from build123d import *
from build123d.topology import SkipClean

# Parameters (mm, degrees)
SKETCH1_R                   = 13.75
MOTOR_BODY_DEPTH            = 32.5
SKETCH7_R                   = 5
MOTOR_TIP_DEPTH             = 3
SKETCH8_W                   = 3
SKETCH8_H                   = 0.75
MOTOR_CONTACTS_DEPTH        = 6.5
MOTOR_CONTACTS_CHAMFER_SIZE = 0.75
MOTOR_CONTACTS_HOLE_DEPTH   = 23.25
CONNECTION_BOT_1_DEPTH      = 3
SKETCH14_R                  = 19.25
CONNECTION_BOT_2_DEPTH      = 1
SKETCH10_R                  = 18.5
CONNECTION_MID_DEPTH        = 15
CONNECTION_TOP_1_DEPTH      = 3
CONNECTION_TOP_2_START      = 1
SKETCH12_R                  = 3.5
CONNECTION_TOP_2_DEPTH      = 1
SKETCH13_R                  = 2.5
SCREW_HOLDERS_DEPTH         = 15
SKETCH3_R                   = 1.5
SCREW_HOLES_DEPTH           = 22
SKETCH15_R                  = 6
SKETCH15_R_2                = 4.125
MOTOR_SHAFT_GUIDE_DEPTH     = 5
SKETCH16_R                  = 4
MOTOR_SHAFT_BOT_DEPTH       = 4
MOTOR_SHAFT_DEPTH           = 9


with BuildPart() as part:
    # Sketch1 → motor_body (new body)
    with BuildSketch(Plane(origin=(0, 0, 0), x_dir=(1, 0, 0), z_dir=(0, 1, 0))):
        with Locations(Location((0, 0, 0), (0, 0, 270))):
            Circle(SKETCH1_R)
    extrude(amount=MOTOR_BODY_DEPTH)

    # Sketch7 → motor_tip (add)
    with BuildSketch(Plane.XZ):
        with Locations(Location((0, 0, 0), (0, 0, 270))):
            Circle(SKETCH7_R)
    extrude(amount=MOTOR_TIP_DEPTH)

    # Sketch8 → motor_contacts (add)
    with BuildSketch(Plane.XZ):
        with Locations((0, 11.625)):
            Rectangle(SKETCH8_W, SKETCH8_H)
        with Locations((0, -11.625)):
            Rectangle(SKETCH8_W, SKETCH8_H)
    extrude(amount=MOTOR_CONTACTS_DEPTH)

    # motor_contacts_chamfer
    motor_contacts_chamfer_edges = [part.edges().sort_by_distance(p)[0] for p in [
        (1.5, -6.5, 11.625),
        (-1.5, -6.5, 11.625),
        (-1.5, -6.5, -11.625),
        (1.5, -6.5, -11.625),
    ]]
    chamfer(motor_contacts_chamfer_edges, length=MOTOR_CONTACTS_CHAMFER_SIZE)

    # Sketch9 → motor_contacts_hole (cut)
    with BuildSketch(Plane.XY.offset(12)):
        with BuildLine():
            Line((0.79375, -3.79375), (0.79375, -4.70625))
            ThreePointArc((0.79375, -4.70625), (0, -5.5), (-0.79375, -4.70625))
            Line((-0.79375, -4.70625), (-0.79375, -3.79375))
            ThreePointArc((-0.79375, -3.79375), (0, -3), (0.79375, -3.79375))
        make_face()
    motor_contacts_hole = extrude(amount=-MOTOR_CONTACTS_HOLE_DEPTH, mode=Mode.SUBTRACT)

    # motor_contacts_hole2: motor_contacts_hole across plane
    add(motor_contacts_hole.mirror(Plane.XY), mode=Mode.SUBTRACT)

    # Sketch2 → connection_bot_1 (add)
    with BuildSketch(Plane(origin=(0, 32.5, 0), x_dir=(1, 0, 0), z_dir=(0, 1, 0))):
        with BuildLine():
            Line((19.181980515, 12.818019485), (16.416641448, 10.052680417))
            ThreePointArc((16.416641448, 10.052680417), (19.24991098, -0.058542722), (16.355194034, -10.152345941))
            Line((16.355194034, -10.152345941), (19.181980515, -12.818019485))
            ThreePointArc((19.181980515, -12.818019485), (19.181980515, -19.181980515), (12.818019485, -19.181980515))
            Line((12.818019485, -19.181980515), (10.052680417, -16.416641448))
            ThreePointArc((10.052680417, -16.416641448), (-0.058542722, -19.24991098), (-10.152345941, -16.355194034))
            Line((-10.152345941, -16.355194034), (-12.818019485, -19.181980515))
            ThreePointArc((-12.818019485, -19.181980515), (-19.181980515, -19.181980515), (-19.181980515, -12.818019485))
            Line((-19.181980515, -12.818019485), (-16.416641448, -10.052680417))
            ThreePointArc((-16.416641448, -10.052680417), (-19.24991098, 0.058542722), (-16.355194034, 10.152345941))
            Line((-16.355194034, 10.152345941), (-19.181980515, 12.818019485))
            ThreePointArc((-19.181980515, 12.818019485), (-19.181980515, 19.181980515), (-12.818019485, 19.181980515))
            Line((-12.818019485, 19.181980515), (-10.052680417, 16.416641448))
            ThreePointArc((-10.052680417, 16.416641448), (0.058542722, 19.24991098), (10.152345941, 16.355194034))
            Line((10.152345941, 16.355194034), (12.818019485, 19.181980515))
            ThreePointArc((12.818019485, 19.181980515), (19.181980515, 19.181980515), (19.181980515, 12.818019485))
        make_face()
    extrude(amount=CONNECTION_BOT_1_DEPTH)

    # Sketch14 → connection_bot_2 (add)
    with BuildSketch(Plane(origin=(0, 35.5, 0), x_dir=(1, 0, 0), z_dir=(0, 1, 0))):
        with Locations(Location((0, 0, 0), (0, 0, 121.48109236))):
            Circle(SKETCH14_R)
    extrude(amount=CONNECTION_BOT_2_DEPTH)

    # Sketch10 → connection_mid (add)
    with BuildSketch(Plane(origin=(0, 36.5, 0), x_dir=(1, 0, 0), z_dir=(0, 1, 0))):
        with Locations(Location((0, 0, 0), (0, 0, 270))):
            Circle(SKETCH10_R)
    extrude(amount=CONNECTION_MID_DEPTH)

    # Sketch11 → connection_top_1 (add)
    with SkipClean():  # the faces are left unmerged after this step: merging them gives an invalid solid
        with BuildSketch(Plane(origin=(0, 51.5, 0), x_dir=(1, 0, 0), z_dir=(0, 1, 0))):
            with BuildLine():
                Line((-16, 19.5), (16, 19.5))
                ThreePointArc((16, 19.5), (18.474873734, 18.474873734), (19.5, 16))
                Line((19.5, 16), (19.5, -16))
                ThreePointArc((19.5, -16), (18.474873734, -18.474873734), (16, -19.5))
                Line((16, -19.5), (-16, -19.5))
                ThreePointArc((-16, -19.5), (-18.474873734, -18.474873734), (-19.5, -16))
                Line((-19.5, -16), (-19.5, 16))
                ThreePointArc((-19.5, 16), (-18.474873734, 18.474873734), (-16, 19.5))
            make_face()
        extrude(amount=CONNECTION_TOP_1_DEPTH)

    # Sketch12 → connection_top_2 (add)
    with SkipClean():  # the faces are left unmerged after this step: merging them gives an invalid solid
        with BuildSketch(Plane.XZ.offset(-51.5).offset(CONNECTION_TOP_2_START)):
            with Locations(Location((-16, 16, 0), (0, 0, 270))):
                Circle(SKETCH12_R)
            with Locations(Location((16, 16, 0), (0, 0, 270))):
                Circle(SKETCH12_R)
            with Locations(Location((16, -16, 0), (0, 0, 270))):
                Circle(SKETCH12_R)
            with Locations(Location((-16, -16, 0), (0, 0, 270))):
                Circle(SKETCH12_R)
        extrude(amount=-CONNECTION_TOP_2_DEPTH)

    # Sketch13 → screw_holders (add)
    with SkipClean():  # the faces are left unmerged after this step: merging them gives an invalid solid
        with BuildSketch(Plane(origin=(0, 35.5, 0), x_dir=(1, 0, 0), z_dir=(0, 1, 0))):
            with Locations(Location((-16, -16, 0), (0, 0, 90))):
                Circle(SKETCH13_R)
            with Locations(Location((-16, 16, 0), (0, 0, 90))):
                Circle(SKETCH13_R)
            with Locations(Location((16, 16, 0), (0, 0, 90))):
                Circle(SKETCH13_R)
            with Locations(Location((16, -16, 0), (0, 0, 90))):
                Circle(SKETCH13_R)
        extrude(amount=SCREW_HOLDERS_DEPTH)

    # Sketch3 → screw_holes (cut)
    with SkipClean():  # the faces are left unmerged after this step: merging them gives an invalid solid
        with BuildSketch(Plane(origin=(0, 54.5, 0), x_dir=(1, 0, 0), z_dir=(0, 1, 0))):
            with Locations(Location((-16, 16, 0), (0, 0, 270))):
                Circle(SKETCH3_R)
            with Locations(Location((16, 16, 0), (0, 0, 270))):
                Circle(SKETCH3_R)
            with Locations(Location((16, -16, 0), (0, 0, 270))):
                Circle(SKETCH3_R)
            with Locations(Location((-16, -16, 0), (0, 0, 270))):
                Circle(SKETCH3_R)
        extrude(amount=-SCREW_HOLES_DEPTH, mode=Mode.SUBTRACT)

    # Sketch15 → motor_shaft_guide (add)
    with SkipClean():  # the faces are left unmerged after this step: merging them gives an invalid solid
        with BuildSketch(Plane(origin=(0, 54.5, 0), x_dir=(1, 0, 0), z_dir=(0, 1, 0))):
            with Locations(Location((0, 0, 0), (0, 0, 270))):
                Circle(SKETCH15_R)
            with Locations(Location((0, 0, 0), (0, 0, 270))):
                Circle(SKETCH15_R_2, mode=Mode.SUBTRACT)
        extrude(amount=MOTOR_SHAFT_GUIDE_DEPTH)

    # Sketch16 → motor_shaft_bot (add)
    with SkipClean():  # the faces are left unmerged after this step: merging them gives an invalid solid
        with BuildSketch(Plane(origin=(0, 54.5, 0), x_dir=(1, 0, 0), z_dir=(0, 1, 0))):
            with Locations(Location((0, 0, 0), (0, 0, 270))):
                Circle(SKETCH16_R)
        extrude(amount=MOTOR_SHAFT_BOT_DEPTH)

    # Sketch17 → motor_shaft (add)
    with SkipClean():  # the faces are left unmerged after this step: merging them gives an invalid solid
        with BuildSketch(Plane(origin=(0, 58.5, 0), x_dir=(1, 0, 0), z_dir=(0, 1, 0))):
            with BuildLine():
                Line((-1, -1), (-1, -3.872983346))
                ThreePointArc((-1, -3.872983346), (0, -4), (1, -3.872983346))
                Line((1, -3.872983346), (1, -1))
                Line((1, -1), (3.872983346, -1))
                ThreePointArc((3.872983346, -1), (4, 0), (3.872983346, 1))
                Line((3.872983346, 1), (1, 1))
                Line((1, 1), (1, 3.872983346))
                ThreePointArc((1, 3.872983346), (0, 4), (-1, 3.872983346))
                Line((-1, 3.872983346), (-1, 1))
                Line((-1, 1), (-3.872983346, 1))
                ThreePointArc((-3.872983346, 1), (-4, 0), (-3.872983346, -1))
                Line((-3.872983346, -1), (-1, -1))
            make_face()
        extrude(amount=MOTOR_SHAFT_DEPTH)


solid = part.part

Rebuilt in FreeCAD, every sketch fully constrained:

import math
import FreeCAD as App
import Part
import Sketcher

V = App.Vector
Q = App.Units.Quantity


def edges_at(feature, points):
    """Names of the edges that pass closest to the given points."""
    edges = feature.Shape.Edges
    near = lambda p: min(range(len(edges)), key=lambda i: edges[i].distToShape(Part.Vertex(*p))[0])
    return sorted({f"Edge{near(p) + 1}" for p in points})

doc = App.newDocument("Part")
body = doc.addObject("PartDesign::Body", "Body")

sketch1 = body.newObject("Sketcher::SketchObject", "Sketch")
sketch1.AttachmentSupport = (doc.getObject("XZ_Plane"), [""])
sketch1.MapMode = "FlatFace"
sketch1.addGeometry(Part.Circle(V(0, 0, 0), V(0, 0, 1), 14), False)
sketch1.addConstraint([
    Sketcher.Constraint("Coincident", 0, 3, -1, 1),
    Sketcher.Constraint("Diameter", 0, 27.5),
])
pad1 = body.newObject("PartDesign::Pad", "Pad")
pad1.Profile = sketch1
pad1.Length = 32.5
pad1.Reversed = True

sketch2 = body.newObject("Sketcher::SketchObject", "Sketch001")
sketch2.AttachmentSupport = (doc.getObject("XZ_Plane"), [""])
sketch2.MapMode = "FlatFace"
sketch2.addGeometry(Part.Circle(V(0, 0, 0), V(0, 0, 1), 5), False)
sketch2.addConstraint([
    Sketcher.Constraint("Coincident", 0, 3, -1, 1),
    Sketcher.Constraint("Diameter", 0, 10.0),
])
pad2 = body.newObject("PartDesign::Pad", "Pad001")
pad2.Profile = sketch2
pad2.Length = 3

sketch3 = body.newObject("Sketcher::SketchObject", "Sketch002")
sketch3.AttachmentSupport = (doc.getObject("XZ_Plane"), [""])
sketch3.MapMode = "FlatFace"
sketch3.addGeometry([
    Part.LineSegment(V(-1.5, 12, 0), V(-1.5, 11.2, 0)),
    Part.LineSegment(V(-1.5, 11.2, 0), V(1.5, 11.2, 0)),
    Part.LineSegment(V(1.5, 11.2, 0), V(1.5, 12, 0)),
    Part.LineSegment(V(1.5, 12, 0), V(-1.5, 12, 0)),
    Part.LineSegment(V(-1.5, -11.2, 0), V(-1.5, -12, 0)),
    Part.LineSegment(V(-1.5, -12, 0), V(1.5, -12, 0)),
    Part.LineSegment(V(1.5, -12, 0), V(1.5, -11.2, 0)),
    Part.LineSegment(V(1.5, -11.2, 0), V(-1.5, -11.2, 0)),
], False)
sketch3.addConstraint([
    Sketcher.Constraint("Coincident", 0, 2, 1, 1),
    Sketcher.Constraint("Coincident", 1, 2, 2, 1),
    Sketcher.Constraint("Coincident", 2, 2, 3, 1),
    Sketcher.Constraint("Coincident", 3, 2, 0, 1),
    Sketcher.Constraint("Coincident", 4, 2, 5, 1),
    Sketcher.Constraint("Coincident", 5, 2, 6, 1),
    Sketcher.Constraint("Coincident", 6, 2, 7, 1),
    Sketcher.Constraint("Coincident", 7, 2, 4, 1),
    Sketcher.Constraint("Vertical", 0),
    Sketcher.Constraint("Horizontal", 1),
    Sketcher.Constraint("Vertical", 2),
    Sketcher.Constraint("Horizontal", 3),
    Sketcher.Constraint("Vertical", 4),
    Sketcher.Constraint("Horizontal", 5),
    Sketcher.Constraint("Vertical", 6),
    Sketcher.Constraint("Horizontal", 7),
    Sketcher.Constraint("Symmetric", 2, 2, 4, 2, -1, 1),
    Sketcher.Constraint("Symmetric", 0, 2, 6, 2, -1, 1),
    Sketcher.Constraint("Vertical", 3, 2, 4, 2),
    Sketcher.Constraint("DistanceX", 1, 1, 1, 2, 3.0),
    Sketcher.Constraint("DistanceY", -1, 1, 2, 2, 12.0),
    Sketcher.Constraint("DistanceY", 0, 2, 0, 1, 0.75),
])
pad3 = body.newObject("PartDesign::Pad", "Pad002")
pad3.Profile = sketch3
pad3.Length = 6.5
doc.recompute()

chamfer = body.newObject("PartDesign::Chamfer", "Chamfer")
chamfer.Base = (pad3, edges_at(pad3, [
    (1.5, -6.5, 11.625),
    (-1.5, -6.5, 11.625),
    (-1.5, -6.5, -11.625),
    (1.5, -6.5, -11.625),
]))
chamfer.Size = 0.75

sketch4 = body.newObject("Sketcher::SketchObject", "Sketch003")
sketch4.AttachmentSupport = (doc.getObject("XY_Plane"), [""])
sketch4.MapMode = "FlatFace"
sketch4.AttachmentOffset = App.Placement(V(0, 0, 12), App.Rotation())
sketch4.addGeometry([
    Part.LineSegment(V(0.8, -4.7, 0), V(0.8, -3.8, 0)),
    Part.ArcOfCircle(Part.Circle(V(0, -3.8, 0), V(0, 0, 1), 0.8), math.radians(0), math.radians(180)),
    Part.LineSegment(V(-0.8, -3.8, 0), V(-0.8, -4.7, 0)),
    Part.ArcOfCircle(Part.Circle(V(0, -4.7, 0), V(0, 0, 1), 0.8), math.radians(180), math.radians(360)),
], False)
sketch4.addConstraint([
    Sketcher.Constraint("Tangent", 0, 2, 1, 1),
    Sketcher.Constraint("Tangent", 1, 2, 2, 1),
    Sketcher.Constraint("Tangent", 2, 2, 3, 1),
    Sketcher.Constraint("Tangent", 3, 2, 0, 1),
    Sketcher.Constraint("Vertical", 0),
    Sketcher.Constraint("Vertical", 2),
    Sketcher.Constraint("PointOnObject", 1, 3, -2),
    Sketcher.Constraint("Radius", 1, 0.79375),
    Sketcher.Constraint("DistanceY", 0, 1, 0, 2, 0.9125),
    Sketcher.Constraint("DistanceY", 1, 3, -1, 1, 3.79375),
])
pocket1 = body.newObject("PartDesign::Pocket", "Pocket")
pocket1.Profile = sketch4
pocket1.Length = 23.25
doc.recompute()

mirrored = body.newObject("PartDesign::Mirrored", "Mirrored")
mirrored.Originals = [pocket1]
mirrored.MirrorPlane = (doc.getObject("XY_Plane"), [""])
body.Tip = mirrored

sketch5 = body.newObject("Sketcher::SketchObject", "Sketch004")
sketch5.AttachmentSupport = (doc.getObject("XZ_Plane"), [""])
sketch5.MapMode = "FlatFace"
sketch5.AttachmentOffset = App.Placement(V(0, 0, -32.5), App.Rotation())
sketch5.addGeometry([
    Part.LineSegment(V(16.4, -10.1, 0), V(19.2, -12.8, 0)),
    Part.ArcOfCircle(Part.Circle(V(16, -16, 0), V(0, 0, 1), 4.5), math.radians(-135), math.radians(45)),
    Part.LineSegment(V(12.8, -19.2, 0), V(10.2, -16.4, 0)),
    Part.ArcOfCircle(Part.Circle(V(0, 0, 0), V(0, 0, 1), 19.3), math.radians(-121), math.radians(-58)),
    Part.LineSegment(V(-10.1, -16.4, 0), V(-12.8, -19.2, 0)),
    Part.ArcOfCircle(Part.Circle(V(-16, -16, 0), V(0, 0, 1), 4.5), math.radians(135), math.radians(315)),
    Part.LineSegment(V(-19.2, -12.8, 0), V(-16.4, -10.2, 0)),
    Part.ArcOfCircle(Part.Circle(V(0, 0, 0), V(0, 0, 1), 19.3), math.radians(149), math.radians(212)),
    Part.LineSegment(V(-16.4, 10.1, 0), V(-19.2, 12.8, 0)),
    Part.ArcOfCircle(Part.Circle(V(-16, 16, 0), V(0, 0, 1), 4.5), math.radians(45), math.radians(225)),
    Part.LineSegment(V(-12.8, 19.2, 0), V(-10.2, 16.4, 0)),
    Part.ArcOfCircle(Part.Circle(V(0, 0, 0), V(0, 0, 1), 19.3), math.radians(59), math.radians(122)),
    Part.LineSegment(V(10.1, 16.4, 0), V(12.8, 19.2, 0)),
    Part.ArcOfCircle(Part.Circle(V(16, 16, 0), V(0, 0, 1), 4.5), math.radians(-45), math.radians(135)),
    Part.LineSegment(V(19.2, 12.8, 0), V(16.4, 10.2, 0)),
    Part.ArcOfCircle(Part.Circle(V(0, 0, 0), V(0, 0, 1), 19.3), math.radians(-31), math.radians(32)),
], False)
sketch5.addConstraint([
    Sketcher.Constraint("Tangent", 0, 2, 1, 2),
    Sketcher.Constraint("Coincident", 1, 1, 2, 1),
    Sketcher.Constraint("Coincident", 2, 2, 3, 2),
    Sketcher.Constraint("Coincident", 3, 1, 4, 1),
    Sketcher.Constraint("Tangent", 4, 2, 5, 2),
    Sketcher.Constraint("Coincident", 5, 1, 6, 1),
    Sketcher.Constraint("Coincident", 6, 2, 7, 2),
    Sketcher.Constraint("Coincident", 7, 1, 8, 1),
    Sketcher.Constraint("Tangent", 8, 2, 9, 2),
    Sketcher.Constraint("Coincident", 9, 1, 10, 1),
    Sketcher.Constraint("Coincident", 10, 2, 11, 2),
    Sketcher.Constraint("Coincident", 11, 1, 12, 1),
    Sketcher.Constraint("Tangent", 12, 2, 13, 2),
    Sketcher.Constraint("Coincident", 13, 1, 14, 1),
    Sketcher.Constraint("Coincident", 14, 2, 15, 2),
    Sketcher.Constraint("Coincident", 15, 1, 0, 1),
    Sketcher.Constraint("Coincident", 3, 3, -1, 1),
    Sketcher.Constraint("Coincident", 7, 3, -1, 1),
    Sketcher.Constraint("Coincident", 11, 3, -1, 1),
    Sketcher.Constraint("Coincident", 15, 3, -1, 1),
    Sketcher.Constraint("Equal", 1, 5),
    Sketcher.Constraint("Equal", 3, 7),
    Sketcher.Constraint("Equal", 5, 9),
    Sketcher.Constraint("Equal", 7, 11),
    Sketcher.Constraint("Equal", 9, 13),
    Sketcher.Constraint("Equal", 11, 15),
    Sketcher.Constraint("Symmetric", 1, 3, 9, 3, -1, 1),
    Sketcher.Constraint("Symmetric", 5, 3, 13, 3, -1, 1),
    Sketcher.Constraint("Symmetric", 1, 3, 5, 3, -2),
    Sketcher.Constraint("Perpendicular", 0, 4),
    Sketcher.Constraint("Perpendicular", 2, 6),
    Sketcher.Constraint("Perpendicular", 4, 8),
    Sketcher.Constraint("Perpendicular", 6, 10),
    Sketcher.Constraint("Perpendicular", 8, 12),
    Sketcher.Constraint("Perpendicular", 10, 14),
    Sketcher.Constraint("Horizontal", 1, 1, 4, 2),
    Sketcher.Constraint("Horizontal", 0, 2, 5, 1),
    Sketcher.Constraint("Horizontal", 9, 1, 12, 2),
    Sketcher.Constraint("Horizontal", 8, 2, 13, 1),
    Sketcher.Constraint("Equal", 0, 4),
    Sketcher.Constraint("Radius", 1, 4.5),
    Sketcher.Constraint("Angle", 0, Q("-45 deg")),
    Sketcher.Constraint("Radius", 3, 19.25),
    Sketcher.Constraint("DistanceX", -1, 1, 1, 3, 16.0),
    Sketcher.Constraint("Distance", 2, 3.885426),
])
pad4 = body.newObject("PartDesign::Pad", "Pad003")
pad4.Profile = sketch5
pad4.Length = 3
pad4.Reversed = True

sketch6 = body.newObject("Sketcher::SketchObject", "Sketch005")
sketch6.AttachmentSupport = (doc.getObject("XZ_Plane"), [""])
sketch6.MapMode = "FlatFace"
sketch6.AttachmentOffset = App.Placement(V(0, 0, -35.5), App.Rotation())
sketch6.addGeometry(Part.Circle(V(0, 0, 0), V(0, 0, 1), 19), False)
sketch6.addConstraint([
    Sketcher.Constraint("Coincident", 0, 3, -1, 1),
    Sketcher.Constraint("Diameter", 0, 38.5),
])
pad5 = body.newObject("PartDesign::Pad", "Pad004")
pad5.Profile = sketch6
pad5.Length = 1
pad5.Reversed = True

sketch7 = body.newObject("Sketcher::SketchObject", "Sketch006")
sketch7.AttachmentSupport = (doc.getObject("XZ_Plane"), [""])
sketch7.MapMode = "FlatFace"
sketch7.AttachmentOffset = App.Placement(V(0, 0, -36.5), App.Rotation())
sketch7.addGeometry(Part.Circle(V(0, 0, 0), V(0, 0, 1), 18), False)
sketch7.addConstraint([
    Sketcher.Constraint("Coincident", 0, 3, -1, 1),
    Sketcher.Constraint("Diameter", 0, 37.0),
])
pad6 = body.newObject("PartDesign::Pad", "Pad005")
pad6.Profile = sketch7
pad6.Length = 15
pad6.Reversed = True

sketch8 = body.newObject("Sketcher::SketchObject", "Sketch007")
sketch8.AttachmentSupport = (doc.getObject("XZ_Plane"), [""])
sketch8.MapMode = "FlatFace"
sketch8.AttachmentOffset = App.Placement(V(0, 0, -51.5), App.Rotation())
sketch8.addGeometry([
    Part.LineSegment(V(16, -19.5, 0), V(-16, -19.5, 0)),
    Part.ArcOfCircle(Part.Circle(V(-16, -16, 0), V(0, 0, 1), 3.5), math.radians(-180), math.radians(-90)),
    Part.LineSegment(V(-19.5, -16, 0), V(-19.5, 16, 0)),
    Part.ArcOfCircle(Part.Circle(V(-16, 16, 0), V(0, 0, 1), 3.5), math.radians(90), math.radians(180)),
    Part.LineSegment(V(-16, 19.5, 0), V(16, 19.5, 0)),
    Part.ArcOfCircle(Part.Circle(V(16, 16, 0), V(0, 0, 1), 3.5), math.radians(0), math.radians(90)),
    Part.LineSegment(V(19.5, 16, 0), V(19.5, -16, 0)),
    Part.ArcOfCircle(Part.Circle(V(16, -16, 0), V(0, 0, 1), 3.5), math.radians(-90), math.radians(0)),
], False)
sketch8.addConstraint([
    Sketcher.Constraint("Tangent", 0, 2, 1, 2),
    Sketcher.Constraint("Tangent", 1, 1, 2, 1),
    Sketcher.Constraint("Tangent", 2, 2, 3, 2),
    Sketcher.Constraint("Tangent", 3, 1, 4, 1),
    Sketcher.Constraint("Tangent", 4, 2, 5, 2),
    Sketcher.Constraint("Tangent", 5, 1, 6, 1),
    Sketcher.Constraint("Tangent", 6, 2, 7, 2),
    Sketcher.Constraint("Tangent", 7, 1, 0, 1),
    Sketcher.Constraint("Horizontal", 0),
    Sketcher.Constraint("Vertical", 2),
    Sketcher.Constraint("Horizontal", 4),
    Sketcher.Constraint("Vertical", 6),
    Sketcher.Constraint("Equal", 1, 3),
    Sketcher.Constraint("Equal", 3, 5),
    Sketcher.Constraint("Equal", 5, 7),
    Sketcher.Constraint("Symmetric", 1, 3, 5, 3, -1, 1),
    Sketcher.Constraint("Equal", 4, 2),
    Sketcher.Constraint("Radius", 1, 3.5),
    Sketcher.Constraint("DistanceX", 0, 2, 0, 1, 32.0),
])
pad7 = body.newObject("PartDesign::Pad", "Pad006")
pad7.Profile = sketch8
pad7.Length = 3
pad7.Reversed = True

sketch9 = body.newObject("Sketcher::SketchObject", "Sketch008")
sketch9.AttachmentSupport = (doc.getObject("XZ_Plane"), [""])
sketch9.MapMode = "FlatFace"
sketch9.AttachmentOffset = App.Placement(V(0, 0, -50.5), App.Rotation())
sketch9.addGeometry([
    Part.Circle(V(-16, 16, 0), V(0, 0, 1), 3.5),
    Part.Circle(V(16, 16, 0), V(0, 0, 1), 3.5),
    Part.Circle(V(16, -16, 0), V(0, 0, 1), 3.5),
    Part.Circle(V(-16, -16, 0), V(0, 0, 1), 3.5),
], False)
sketch9.addConstraint([
    Sketcher.Constraint("Equal", 0, 1),
    Sketcher.Constraint("Equal", 1, 2),
    Sketcher.Constraint("Equal", 2, 3),
    Sketcher.Constraint("Symmetric", 0, 3, 2, 3, -1, 1),
    Sketcher.Constraint("Symmetric", 1, 3, 3, 3, -1, 1),
    Sketcher.Constraint("Symmetric", 0, 3, 1, 3, -2),
    Sketcher.Constraint("Diameter", 0, 7.0),
    Sketcher.Constraint("DistanceX", 0, 3, -1, 1, 16.0),
    Sketcher.Constraint("DistanceY", -1, 1, 0, 3, 16.0),
])
pad8 = body.newObject("PartDesign::Pad", "Pad007")
pad8.Profile = sketch9
pad8.Length = 1
pad8.Reversed = True

sketch10 = body.newObject("Sketcher::SketchObject", "Sketch009")
sketch10.AttachmentSupport = (doc.getObject("XZ_Plane"), [""])
sketch10.MapMode = "FlatFace"
sketch10.AttachmentOffset = App.Placement(V(0, 0, -35.5), App.Rotation())
sketch10.addGeometry([
    Part.Circle(V(-16, 16, 0), V(0, 0, 1), 2.5),
    Part.Circle(V(-16, -16, 0), V(0, 0, 1), 2.5),
    Part.Circle(V(16, -16, 0), V(0, 0, 1), 2.5),
    Part.Circle(V(16, 16, 0), V(0, 0, 1), 2.5),
], False)
sketch10.addConstraint([
    Sketcher.Constraint("Equal", 0, 1),
    Sketcher.Constraint("Equal", 1, 2),
    Sketcher.Constraint("Equal", 2, 3),
    Sketcher.Constraint("Symmetric", 0, 3, 2, 3, -1, 1),
    Sketcher.Constraint("Symmetric", 1, 3, 3, 3, -1, 1),
    Sketcher.Constraint("Symmetric", 1, 3, 2, 3, -2),
    Sketcher.Constraint("Diameter", 0, 5.0),
    Sketcher.Constraint("DistanceX", 0, 3, -1, 1, 16.0),
    Sketcher.Constraint("DistanceY", -1, 1, 0, 3, 16.0),
])
pad9 = body.newObject("PartDesign::Pad", "Pad008")
pad9.Profile = sketch10
pad9.Length = 15
pad9.Reversed = True

sketch11 = body.newObject("Sketcher::SketchObject", "Sketch010")
sketch11.AttachmentSupport = (doc.getObject("XZ_Plane"), [""])
sketch11.MapMode = "FlatFace"
sketch11.AttachmentOffset = App.Placement(V(0, 0, -54.5), App.Rotation())
sketch11.addGeometry([
    Part.Circle(V(-16, -16, 0), V(0, 0, 1), 1.5),
    Part.Circle(V(16, -16, 0), V(0, 0, 1), 1.5),
    Part.Circle(V(16, 16, 0), V(0, 0, 1), 1.5),
    Part.Circle(V(-16, 16, 0), V(0, 0, 1), 1.5),
], False)
sketch11.addConstraint([
    Sketcher.Constraint("Equal", 0, 1),
    Sketcher.Constraint("Equal", 1, 2),
    Sketcher.Constraint("Equal", 2, 3),
    Sketcher.Constraint("Symmetric", 0, 3, 2, 3, -1, 1),
    Sketcher.Constraint("Symmetric", 1, 3, 3, 3, -1, 1),
    Sketcher.Constraint("Symmetric", 0, 3, 1, 3, -2),
    Sketcher.Constraint("Diameter", 0, 3.0),
    Sketcher.Constraint("DistanceX", 0, 3, -1, 1, 16.0),
    Sketcher.Constraint("DistanceY", 0, 3, -1, 1, 16.0),
])
pocket2 = body.newObject("PartDesign::Pocket", "Pocket001")
pocket2.Profile = sketch11
pocket2.Length = 22
pocket2.Reversed = True

sketch12 = body.newObject("Sketcher::SketchObject", "Sketch011")
sketch12.AttachmentSupport = (doc.getObject("XZ_Plane"), [""])
sketch12.MapMode = "FlatFace"
sketch12.AttachmentOffset = App.Placement(V(0, 0, -54.5), App.Rotation())
sketch12.addGeometry([
    Part.Circle(V(0, 0, 0), V(0, 0, 1), 6),
    Part.Circle(V(0, 0, 0), V(0, 0, 1), 4.1),
], False)
sketch12.addConstraint([
    Sketcher.Constraint("Coincident", 0, 3, -1, 1),
    Sketcher.Constraint("Coincident", 1, 3, -1, 1),
    Sketcher.Constraint("Diameter", 0, 12.0),
    Sketcher.Constraint("Diameter", 1, 8.25),
])
pad10 = body.newObject("PartDesign::Pad", "Pad009")
pad10.Profile = sketch12
pad10.Length = 5
pad10.Reversed = True

sketch13 = body.newObject("Sketcher::SketchObject", "Sketch012")
sketch13.AttachmentSupport = (doc.getObject("XZ_Plane"), [""])
sketch13.MapMode = "FlatFace"
sketch13.AttachmentOffset = App.Placement(V(0, 0, -54.5), App.Rotation())
sketch13.addGeometry(Part.Circle(V(0, 0, 0), V(0, 0, 1), 4), False)
sketch13.addConstraint([
    Sketcher.Constraint("Coincident", 0, 3, -1, 1),
    Sketcher.Constraint("Diameter", 0, 8.0),
])
pad11 = body.newObject("PartDesign::Pad", "Pad010")
pad11.Profile = sketch13
pad11.Length = 4
pad11.Reversed = True

sketch14 = body.newObject("Sketcher::SketchObject", "Sketch013")
sketch14.AttachmentSupport = (doc.getObject("XZ_Plane"), [""])
sketch14.MapMode = "FlatFace"
sketch14.AttachmentOffset = App.Placement(V(0, 0, -58.5), App.Rotation())
sketch14.addGeometry([
    Part.LineSegment(V(-1, 1, 0), V(-1, 3.9, 0)),
    Part.ArcOfCircle(Part.Circle(V(0, 0, 0), V(0, 0, 1), 4), math.radians(76), math.radians(104)),
    Part.LineSegment(V(1, 3.9, 0), V(1, 1, 0)),
    Part.LineSegment(V(1, 1, 0), V(3.9, 1, 0)),
    Part.ArcOfCircle(Part.Circle(V(0, 0, 0), V(0, 0, 1), 4), math.radians(-14), math.radians(14)),
    Part.LineSegment(V(3.9, -1, 0), V(1, -1, 0)),
    Part.LineSegment(V(1, -1, 0), V(1, -3.9, 0)),
    Part.ArcOfCircle(Part.Circle(V(0, 0, 0), V(0, 0, 1), 4), math.radians(-104), math.radians(-76)),
    Part.LineSegment(V(-1, -3.9, 0), V(-1, -1, 0)),
    Part.LineSegment(V(-1, -1, 0), V(-3.9, -1, 0)),
    Part.ArcOfCircle(Part.Circle(V(0, 0, 0), V(0, 0, 1), 4), math.radians(166), math.radians(194)),
    Part.LineSegment(V(-3.9, 1, 0), V(-1, 1, 0)),
], False)
sketch14.addConstraint([
    Sketcher.Constraint("Coincident", 0, 2, 1, 2),
    Sketcher.Constraint("Coincident", 1, 1, 2, 1),
    Sketcher.Constraint("Coincident", 2, 2, 3, 1),
    Sketcher.Constraint("Coincident", 3, 2, 4, 2),
    Sketcher.Constraint("Coincident", 4, 1, 5, 1),
    Sketcher.Constraint("Coincident", 5, 2, 6, 1),
    Sketcher.Constraint("Coincident", 6, 2, 7, 2),
    Sketcher.Constraint("Coincident", 7, 1, 8, 1),
    Sketcher.Constraint("Coincident", 8, 2, 9, 1),
    Sketcher.Constraint("Coincident", 9, 2, 10, 2),
    Sketcher.Constraint("Coincident", 10, 1, 11, 1),
    Sketcher.Constraint("Coincident", 11, 2, 0, 1),
    Sketcher.Constraint("Vertical", 0),
    Sketcher.Constraint("Vertical", 2),
    Sketcher.Constraint("Horizontal", 3),
    Sketcher.Constraint("Horizontal", 5),
    Sketcher.Constraint("Vertical", 6),
    Sketcher.Constraint("Vertical", 8),
    Sketcher.Constraint("Horizontal", 9),
    Sketcher.Constraint("Horizontal", 11),
    Sketcher.Constraint("Coincident", 1, 3, -1, 1),
    Sketcher.Constraint("Coincident", 4, 3, -1, 1),
    Sketcher.Constraint("Coincident", 7, 3, -1, 1),
    Sketcher.Constraint("Coincident", 10, 3, -1, 1),
    Sketcher.Constraint("Equal", 1, 4),
    Sketcher.Constraint("Equal", 4, 7),
    Sketcher.Constraint("Equal", 7, 10),
    Sketcher.Constraint("Symmetric", 2, 2, 8, 2, -1, 1),
    Sketcher.Constraint("Symmetric", 5, 2, 11, 2, -1, 1),
    Sketcher.Constraint("Symmetric", 5, 2, 8, 2, -2),
    Sketcher.Constraint("Equal", 11, 0),
    Sketcher.Constraint("Radius", 1, 4.0),
    Sketcher.Constraint("DistanceX", 0, 2, -1, 1, 1.0),
])
pad12 = body.newObject("PartDesign::Pad", "Pad011")
pad12.Profile = sketch14
pad12.Length = 9
pad12.Reversed = True

doc.recompute()
